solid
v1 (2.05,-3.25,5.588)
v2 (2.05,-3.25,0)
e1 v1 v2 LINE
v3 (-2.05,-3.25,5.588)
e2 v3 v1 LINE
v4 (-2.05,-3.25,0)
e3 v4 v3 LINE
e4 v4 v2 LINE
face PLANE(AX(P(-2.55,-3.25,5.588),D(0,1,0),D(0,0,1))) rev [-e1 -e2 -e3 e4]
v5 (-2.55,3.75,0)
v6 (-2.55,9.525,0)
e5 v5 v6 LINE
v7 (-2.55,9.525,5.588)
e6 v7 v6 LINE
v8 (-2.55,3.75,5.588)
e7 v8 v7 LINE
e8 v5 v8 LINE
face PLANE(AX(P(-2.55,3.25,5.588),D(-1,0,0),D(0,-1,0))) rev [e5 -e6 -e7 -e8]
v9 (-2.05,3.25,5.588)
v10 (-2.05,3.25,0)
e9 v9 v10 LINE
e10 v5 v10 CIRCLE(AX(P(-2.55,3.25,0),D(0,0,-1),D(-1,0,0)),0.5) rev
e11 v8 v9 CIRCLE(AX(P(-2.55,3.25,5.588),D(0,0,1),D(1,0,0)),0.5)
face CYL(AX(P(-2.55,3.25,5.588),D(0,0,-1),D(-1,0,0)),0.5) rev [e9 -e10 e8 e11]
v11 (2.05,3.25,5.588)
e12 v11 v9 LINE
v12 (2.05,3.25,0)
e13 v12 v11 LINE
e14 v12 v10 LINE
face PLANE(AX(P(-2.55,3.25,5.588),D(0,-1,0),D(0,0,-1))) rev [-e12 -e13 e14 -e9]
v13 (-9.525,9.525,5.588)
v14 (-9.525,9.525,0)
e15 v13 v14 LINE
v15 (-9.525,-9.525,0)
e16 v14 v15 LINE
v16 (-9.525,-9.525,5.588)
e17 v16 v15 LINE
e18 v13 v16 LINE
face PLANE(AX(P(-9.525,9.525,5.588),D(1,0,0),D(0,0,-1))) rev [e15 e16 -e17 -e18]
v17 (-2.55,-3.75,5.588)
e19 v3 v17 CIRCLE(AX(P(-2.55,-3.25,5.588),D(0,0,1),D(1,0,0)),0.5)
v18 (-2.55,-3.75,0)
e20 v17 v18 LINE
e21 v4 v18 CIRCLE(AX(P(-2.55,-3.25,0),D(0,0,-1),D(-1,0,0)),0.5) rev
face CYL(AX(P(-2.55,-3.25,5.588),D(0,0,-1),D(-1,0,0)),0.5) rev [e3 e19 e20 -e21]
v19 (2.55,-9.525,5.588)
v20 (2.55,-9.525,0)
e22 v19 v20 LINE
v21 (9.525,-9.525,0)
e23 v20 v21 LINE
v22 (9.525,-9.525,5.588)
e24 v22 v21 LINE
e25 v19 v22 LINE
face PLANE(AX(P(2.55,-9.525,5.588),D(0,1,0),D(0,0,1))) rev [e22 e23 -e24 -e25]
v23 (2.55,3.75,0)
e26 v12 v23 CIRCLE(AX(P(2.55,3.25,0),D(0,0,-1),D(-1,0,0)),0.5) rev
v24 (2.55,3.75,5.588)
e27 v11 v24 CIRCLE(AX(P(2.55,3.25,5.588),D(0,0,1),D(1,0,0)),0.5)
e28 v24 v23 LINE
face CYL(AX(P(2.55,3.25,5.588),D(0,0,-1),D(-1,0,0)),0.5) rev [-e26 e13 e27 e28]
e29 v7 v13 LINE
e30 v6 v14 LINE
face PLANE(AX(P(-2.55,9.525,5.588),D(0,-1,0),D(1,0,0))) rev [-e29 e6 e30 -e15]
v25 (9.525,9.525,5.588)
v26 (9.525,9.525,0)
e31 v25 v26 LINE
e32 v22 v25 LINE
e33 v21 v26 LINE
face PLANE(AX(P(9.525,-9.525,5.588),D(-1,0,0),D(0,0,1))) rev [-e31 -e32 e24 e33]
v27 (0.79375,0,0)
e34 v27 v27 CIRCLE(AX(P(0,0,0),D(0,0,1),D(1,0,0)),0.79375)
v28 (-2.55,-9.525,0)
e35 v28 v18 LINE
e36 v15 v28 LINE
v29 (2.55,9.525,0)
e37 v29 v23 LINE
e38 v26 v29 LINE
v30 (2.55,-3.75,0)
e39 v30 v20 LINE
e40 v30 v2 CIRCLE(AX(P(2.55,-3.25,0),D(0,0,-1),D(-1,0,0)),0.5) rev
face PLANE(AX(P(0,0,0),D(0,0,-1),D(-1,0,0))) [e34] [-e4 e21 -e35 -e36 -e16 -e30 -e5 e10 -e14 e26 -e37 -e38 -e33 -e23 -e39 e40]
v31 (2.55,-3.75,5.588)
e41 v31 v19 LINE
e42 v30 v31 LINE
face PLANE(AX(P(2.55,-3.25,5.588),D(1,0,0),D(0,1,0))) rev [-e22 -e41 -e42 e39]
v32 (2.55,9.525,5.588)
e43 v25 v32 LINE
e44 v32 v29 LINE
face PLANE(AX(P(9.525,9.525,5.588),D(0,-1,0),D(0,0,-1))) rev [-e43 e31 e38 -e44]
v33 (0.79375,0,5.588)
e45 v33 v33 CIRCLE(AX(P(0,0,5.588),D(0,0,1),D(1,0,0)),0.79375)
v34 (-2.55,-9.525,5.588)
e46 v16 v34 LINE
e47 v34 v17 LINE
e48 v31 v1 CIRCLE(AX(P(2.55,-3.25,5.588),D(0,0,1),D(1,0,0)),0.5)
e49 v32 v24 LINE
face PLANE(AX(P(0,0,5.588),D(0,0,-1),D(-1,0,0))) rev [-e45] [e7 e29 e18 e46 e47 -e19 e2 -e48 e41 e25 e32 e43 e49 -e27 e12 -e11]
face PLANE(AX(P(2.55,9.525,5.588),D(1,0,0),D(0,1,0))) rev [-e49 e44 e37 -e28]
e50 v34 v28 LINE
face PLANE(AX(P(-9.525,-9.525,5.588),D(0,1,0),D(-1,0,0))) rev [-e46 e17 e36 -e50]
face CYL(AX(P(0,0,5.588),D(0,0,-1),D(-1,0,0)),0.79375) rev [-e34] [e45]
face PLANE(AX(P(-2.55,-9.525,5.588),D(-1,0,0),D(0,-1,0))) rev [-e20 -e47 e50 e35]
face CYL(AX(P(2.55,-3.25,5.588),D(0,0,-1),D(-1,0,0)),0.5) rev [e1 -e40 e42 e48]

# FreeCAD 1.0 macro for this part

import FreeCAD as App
import Part
import Sketcher

V = App.Vector
Q = App.Units.Quantity


def add_polygon(sketch, points):
    """Adds a closed chain of lines whose ends are joined by coincident constraints."""
    first, n = sketch.GeometryCount, len(points)
    for a, b in zip(points, points[1:] + points[:1]):
        sketch.addGeometry(Part.LineSegment(App.Vector(*a, 0), App.Vector(*b, 0)), False)
    for i in range(n):
        sketch.addConstraint(Sketcher.Constraint("Coincident", first + i, 2, first + (i + 1) % n, 1))

doc = App.newDocument("Part")
body = doc.addObject("PartDesign::Body", "Body")

sketch1 = body.newObject("Sketcher::SketchObject", "Sketch")
sketch1.AttachmentSupport = (doc.getObject("XY_Plane"), [""])
sketch1.MapMode = "FlatFace"
add_polygon(sketch1, [(-2.55, 3.25), (-2.55, 9.525), (-9.525, 9.525), (-9.525, -9.525), (-2.55, -9.525), (-2.55, -3.25), (2.55, -3.25), (2.55, -9.525), (9.525, -9.525), (9.525, 9.525), (2.55, 9.525), (2.55, 3.25)])
sketch1.addGeometry(Part.Circle(V(0, 0, 0), V(0, 0, 1), 0.79375), False)
sketch1.addConstraint(Sketcher.Constraint("Vertical", 0))
sketch1.addConstraint(Sketcher.Constraint("Horizontal", 1))
sketch1.addConstraint(Sketcher.Constraint("Vertical", 2))
sketch1.addConstraint(Sketcher.Constraint("Horizontal", 3))
sketch1.addConstraint(Sketcher.Constraint("Vertical", 4))
sketch1.addConstraint(Sketcher.Constraint("Horizontal", 5))
sketch1.addConstraint(Sketcher.Constraint("Vertical", 6))
sketch1.addConstraint(Sketcher.Constraint("Horizontal", 7))
sketch1.addConstraint(Sketcher.Constraint("Vertical", 8))
sketch1.addConstraint(Sketcher.Constraint("Horizontal", 9))
sketch1.addConstraint(Sketcher.Constraint("Vertical", 10))
sketch1.addConstraint(Sketcher.Constraint("Horizontal", 11))
sketch1.addConstraint(Sketcher.Constraint("Coincident", 12, 3, -1, 1))
sketch1.addConstraint(Sketcher.Constraint("Symmetric", 0, 2, 6, 2, -1, 1))
sketch1.addConstraint(Sketcher.Constraint("Symmetric", 2, 2, 8, 2, -1, 1))
sketch1.addConstraint(Sketcher.Constraint("Symmetric", 4, 2, 10, 2, -1, 1))
sketch1.addConstraint(Sketcher.Constraint("Symmetric", 3, 2, 6, 2, -2))
sketch1.addConstraint(Sketcher.Constraint("Diameter", 12, Q("0.0625 in")))
sketch1.addConstraint(Sketcher.Constraint("DistanceY", 2, 2, 2, 1, Q("0.75 in")))
sketch1.addConstraint(Sketcher.Constraint("DistanceX", 1, 2, 8, 2, Q("0.75 in")))
sketch1.addConstraint(Sketcher.Constraint("DistanceX", 1, 2, 1, 1, 6.975))
sketch1.addConstraint(Sketcher.Constraint("DistanceY", 0, 1, 0, 2, 6.275))
pad1 = body.newObject("PartDesign::Pad", "Pad")
pad1.Profile = sketch1
pad1.Length = Q("0.22 in")

sketch2 = body.newObject("Sketcher::SketchObject", "Sketch001")
sketch2.AttachmentSupport = (doc.getObject("XY_Plane"), [""])
sketch2.MapMode = "FlatFace"
sketch2.addGeometry(Part.Circle(V(-2.55, 3.25, 0), V(0, 0, 1), 0.5), False)
sketch2.addGeometry(Part.Circle(V(2.55, 3.25, 0), V(0, 0, 1), 0.5), False)
sketch2.addGeometry(Part.Circle(V(2.55, -3.25, 0), V(0, 0, 1), 0.5), False)
sketch2.addGeometry(Part.Circle(V(-2.55, -3.25, 0), V(0, 0, 1), 0.5), False)
sketch2.addConstraint(Sketcher.Constraint("Equal", 0, 1))
sketch2.addConstraint(Sketcher.Constraint("Equal", 1, 2))
sketch2.addConstraint(Sketcher.Constraint("Equal", 2, 3))
sketch2.addConstraint(Sketcher.Constraint("Symmetric", 0, 3, 2, 3, -1, 1))
sketch2.addConstraint(Sketcher.Constraint("Symmetric", 1, 3, 3, 3, -1, 1))
sketch2.addConstraint(Sketcher.Constraint("Symmetric", 0, 3, 1, 3, -2))
sketch2.addConstraint(Sketcher.Constraint("Diameter", 0, 1.0))
sketch2.addConstraint(Sketcher.Constraint("DistanceX", 0, 3, -1, 1, 2.55))
sketch2.addConstraint(Sketcher.Constraint("DistanceY", -1, 1, 0, 3, 3.25))
pocket1 = body.newObject("PartDesign::Pocket", "Pocket")
pocket1.Profile = sketch2
pocket1.Type = "ThroughAll"
pocket1.Midplane = True

doc.recompute()
